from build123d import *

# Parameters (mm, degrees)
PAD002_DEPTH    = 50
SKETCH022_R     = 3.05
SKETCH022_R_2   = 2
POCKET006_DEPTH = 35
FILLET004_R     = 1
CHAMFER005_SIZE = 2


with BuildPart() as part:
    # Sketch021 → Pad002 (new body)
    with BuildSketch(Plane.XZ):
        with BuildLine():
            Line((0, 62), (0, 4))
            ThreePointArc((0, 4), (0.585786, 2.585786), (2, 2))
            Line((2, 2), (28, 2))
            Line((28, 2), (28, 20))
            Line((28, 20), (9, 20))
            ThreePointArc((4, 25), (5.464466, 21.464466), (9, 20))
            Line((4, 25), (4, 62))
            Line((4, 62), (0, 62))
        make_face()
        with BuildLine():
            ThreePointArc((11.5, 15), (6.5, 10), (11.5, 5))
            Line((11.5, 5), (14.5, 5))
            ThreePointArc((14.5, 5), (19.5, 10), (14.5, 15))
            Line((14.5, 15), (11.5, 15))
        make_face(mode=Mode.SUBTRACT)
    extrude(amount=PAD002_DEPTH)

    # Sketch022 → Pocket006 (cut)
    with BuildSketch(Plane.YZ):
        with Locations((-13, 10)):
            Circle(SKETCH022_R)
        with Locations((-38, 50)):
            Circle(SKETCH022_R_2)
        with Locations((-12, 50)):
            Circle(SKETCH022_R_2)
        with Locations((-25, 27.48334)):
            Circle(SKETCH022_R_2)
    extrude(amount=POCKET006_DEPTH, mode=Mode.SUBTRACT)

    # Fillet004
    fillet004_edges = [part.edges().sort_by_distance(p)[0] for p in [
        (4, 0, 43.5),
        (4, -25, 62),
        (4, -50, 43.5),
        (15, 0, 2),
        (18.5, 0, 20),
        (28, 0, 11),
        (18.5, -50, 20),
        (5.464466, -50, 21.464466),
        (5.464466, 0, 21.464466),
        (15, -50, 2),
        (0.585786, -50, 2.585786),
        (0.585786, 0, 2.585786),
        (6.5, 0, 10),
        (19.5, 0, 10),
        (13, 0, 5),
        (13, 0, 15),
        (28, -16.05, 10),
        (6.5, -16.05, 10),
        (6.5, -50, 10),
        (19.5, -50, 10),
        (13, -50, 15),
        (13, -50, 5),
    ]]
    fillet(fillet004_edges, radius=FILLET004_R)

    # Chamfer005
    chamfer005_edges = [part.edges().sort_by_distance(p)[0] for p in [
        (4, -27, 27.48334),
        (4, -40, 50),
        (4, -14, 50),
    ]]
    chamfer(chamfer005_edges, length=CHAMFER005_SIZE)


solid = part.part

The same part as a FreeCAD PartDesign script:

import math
import FreeCAD as App
import Part
import Sketcher
from FreeCAD import Vector
Q = App.Units.Quantity


def edges_at(feature, points):
    """Names of the edges that pass closest to the given points."""
    edges = feature.Shape.Edges
    near = lambda p: min(range(len(edges)), key=lambda i: edges[i].distToShape(Part.Vertex(*p))[0])
    return sorted({f"Edge{near(p) + 1}" for p in points})

doc = App.newDocument("Part")
body = doc.addObject("PartDesign::Body", "Body")

sketch1 = doc.addObject("Sketcher::SketchObject", "Sketch")
body.addObject(sketch1)
sketch1.AttachmentSupport = (doc.XZ_Plane, [""])
sketch1.MapMode = "FlatFace"
sketch1.addGeometry([
    Part.LineSegment(Vector(0, 62, 0), Vector(0, 4, 0)),
    Part.ArcOfCircle(Part.Circle(Vector(1.999999, 3.999999, 0), Vector(0, 0, 1), 1.999999), math.radians(179.999957), math.radians(270.000043)),
    Part.LineSegment(Vector(2, 2, 0), Vector(28, 2, 0)),
    Part.LineSegment(Vector(28, 2, 0), Vector(28, 20, 0)),
    Part.LineSegment(Vector(28, 20, 0), Vector(9, 20, 0)),
    Part.ArcOfCircle(Part.Circle(Vector(9, 25, 0), Vector(0, 0, 1), 5), math.radians(179.999996), math.radians(270.000004)),
    Part.LineSegment(Vector(4, 25, 0), Vector(4, 62, 0)),
    Part.LineSegment(Vector(4, 62, 0), Vector(0, 62, 0)),
    Part.ArcOfCircle(Part.Circle(Vector(11.5, 10, 0), Vector(0, 0, 1), 5), math.radians(90), math.radians(270)),
    Part.LineSegment(Vector(11.5, 15, 0), Vector(14.5, 15, 0)),
    Part.ArcOfCircle(Part.Circle(Vector(14.5, 10, 0), Vector(0, 0, 1), 5), math.radians(-90), math.radians(90)),
    Part.LineSegment(Vector(14.5, 5, 0), Vector(11.5, 5, 0)),
], False)
sketch1.addConstraint([
    Sketcher.Constraint("Tangent", 0, 2, 1, 1),
    Sketcher.Constraint("Tangent", 1, 2, 2, 1),
    Sketcher.Constraint("Coincident", 2, 2, 3, 1),
    Sketcher.Constraint("Coincident", 3, 2, 4, 1),
    Sketcher.Constraint("Tangent", 4, 2, 5, 2),
    Sketcher.Constraint("Tangent", 5, 1, 6, 1),
    Sketcher.Constraint("Coincident", 6, 2, 7, 1),
    Sketcher.Constraint("Coincident", 7, 2, 0, 1),
    Sketcher.Constraint("Tangent", 8, 1, 9, 1),
    Sketcher.Constraint("Tangent", 9, 2, 10, 2),
    Sketcher.Constraint("Tangent", 10, 1, 11, 1),
    Sketcher.Constraint("Tangent", 11, 2, 8, 2),
    Sketcher.Constraint("Vertical", 0),
    Sketcher.Constraint("Horizontal", 2),
    Sketcher.Constraint("Vertical", 3),
    Sketcher.Constraint("Horizontal", 4),
    Sketcher.Constraint("Vertical", 6),
    Sketcher.Constraint("Horizontal", 7),
    Sketcher.Constraint("Horizontal", 9),
    Sketcher.Constraint("Horizontal", 11),
    Sketcher.Constraint("Equal", 5, 8),
    Sketcher.Constraint("PointOnObject", 0, 2, -2),
    Sketcher.Constraint("Radius", 1, Q("1.999999 mm")),
    Sketcher.Constraint("Radius", 5, Q("5 mm")),
    Sketcher.Constraint("DistanceX", 2, 1, 2, 2, Q("26 mm")),
    Sketcher.Constraint("DistanceX", 4, 2, 4, 1, Q("19 mm")),
    Sketcher.Constraint("DistanceX", 9, 1, 9, 2, Q("3 mm")),
    Sketcher.Constraint("DistanceY", 0, 2, 0, 1, Q("58 mm")),
    Sketcher.Constraint("DistanceY", 3, 1, 3, 2, Q("18 mm")),
    Sketcher.Constraint("DistanceY", -1, 1, 1, 3, Q("3.999999 mm")),
    Sketcher.Constraint("DistanceY", -1, 1, 8, 3, Q("10 mm")),
    Sketcher.Constraint("DistanceX", -1, 1, 8, 3, Q("11.5 mm")),
])
pad1 = doc.addObject("PartDesign::Pad", "Pad")
body.addObject(pad1)
pad1.Profile = sketch1
pad1.Length = 50

sketch2 = doc.addObject("Sketcher::SketchObject", "Sketch001")
body.addObject(sketch2)
sketch2.AttachmentSupport = (doc.YZ_Plane, [""])
sketch2.MapMode = "FlatFace"
sketch2.addGeometry([
    Part.Circle(Vector(-13, 10, 0), Vector(0, 0, 1), 3.05),
    Part.Circle(Vector(-38, 50, 0), Vector(0, 0, 1), 2),
    Part.Circle(Vector(-12, 50, 0), Vector(0, 0, 1), 2),
    Part.Circle(Vector(-25, 27.48334, 0), Vector(0, 0, 1), 2),
], False)
sketch2.addConstraint([
    Sketcher.Constraint("Equal", 1, 2),
    Sketcher.Constraint("Equal", 2, 3),
    Sketcher.Constraint("Horizontal", 1, 3, 2, 3),
    Sketcher.Constraint("Diameter", 1, Q("4 mm")),
    Sketcher.Constraint("Diameter", 0, Q("6.1 mm")),
    Sketcher.Constraint("DistanceX", 0, 3, -1, 1, Q("13 mm")),
    Sketcher.Constraint("DistanceY", -1, 1, 0, 3, Q("10 mm")),
    Sketcher.Constraint("DistanceX", 1, 3, -1, 1, Q("38 mm")),
    Sketcher.Constraint("DistanceY", -1, 1, 1, 3, Q("50 mm")),
    Sketcher.Constraint("DistanceX", 2, 3, -1, 1, Q("12 mm")),
    Sketcher.Constraint("DistanceX", 3, 3, -1, 1, Q("25 mm")),
    Sketcher.Constraint("DistanceY", -1, 1, 3, 3, Q("27.48334 mm")),
])
pocket1 = doc.addObject("PartDesign::Pocket", "Pocket")
body.addObject(pocket1)
pocket1.Profile = sketch2
pocket1.Length = 35
pocket1.Reversed = True
doc.recompute()

fillet = doc.addObject("PartDesign::Fillet", "Fillet")
body.addObject(fillet)
fillet.Base = (pocket1, edges_at(pocket1, [
    (4, 0, 43.5),
    (4, -25, 62),
    (4, -50, 43.5),
    (15, 0, 2),
    (18.5, 0, 20),
    (28, 0, 11),
    (18.5, -50, 20),
    (5.464, -50, 21.464),
    (5.464, 0, 21.464),
    (15, -50, 2),
    (0.586, -50, 2.586),
    (0.586, 0, 2.586),
    (6.5, 0, 10),
    (19.5, 0, 10),
    (13, 0, 5),
    (13, 0, 15),
    (28, -16.05, 10),
    (6.5, -16.05, 10),
    (6.5, -50, 10),
    (19.5, -50, 10),
    (13, -50, 15),
    (13, -50, 5),
]))
fillet.Radius = 1
doc.recompute()

chamfer = doc.addObject("PartDesign::Chamfer", "Chamfer")
body.addObject(chamfer)
chamfer.Base = (fillet, edges_at(fillet, [(4, -27, 27.483), (4, -40, 50), (4, -14, 50)]))
chamfer.Size = 2

doc.recompute()
